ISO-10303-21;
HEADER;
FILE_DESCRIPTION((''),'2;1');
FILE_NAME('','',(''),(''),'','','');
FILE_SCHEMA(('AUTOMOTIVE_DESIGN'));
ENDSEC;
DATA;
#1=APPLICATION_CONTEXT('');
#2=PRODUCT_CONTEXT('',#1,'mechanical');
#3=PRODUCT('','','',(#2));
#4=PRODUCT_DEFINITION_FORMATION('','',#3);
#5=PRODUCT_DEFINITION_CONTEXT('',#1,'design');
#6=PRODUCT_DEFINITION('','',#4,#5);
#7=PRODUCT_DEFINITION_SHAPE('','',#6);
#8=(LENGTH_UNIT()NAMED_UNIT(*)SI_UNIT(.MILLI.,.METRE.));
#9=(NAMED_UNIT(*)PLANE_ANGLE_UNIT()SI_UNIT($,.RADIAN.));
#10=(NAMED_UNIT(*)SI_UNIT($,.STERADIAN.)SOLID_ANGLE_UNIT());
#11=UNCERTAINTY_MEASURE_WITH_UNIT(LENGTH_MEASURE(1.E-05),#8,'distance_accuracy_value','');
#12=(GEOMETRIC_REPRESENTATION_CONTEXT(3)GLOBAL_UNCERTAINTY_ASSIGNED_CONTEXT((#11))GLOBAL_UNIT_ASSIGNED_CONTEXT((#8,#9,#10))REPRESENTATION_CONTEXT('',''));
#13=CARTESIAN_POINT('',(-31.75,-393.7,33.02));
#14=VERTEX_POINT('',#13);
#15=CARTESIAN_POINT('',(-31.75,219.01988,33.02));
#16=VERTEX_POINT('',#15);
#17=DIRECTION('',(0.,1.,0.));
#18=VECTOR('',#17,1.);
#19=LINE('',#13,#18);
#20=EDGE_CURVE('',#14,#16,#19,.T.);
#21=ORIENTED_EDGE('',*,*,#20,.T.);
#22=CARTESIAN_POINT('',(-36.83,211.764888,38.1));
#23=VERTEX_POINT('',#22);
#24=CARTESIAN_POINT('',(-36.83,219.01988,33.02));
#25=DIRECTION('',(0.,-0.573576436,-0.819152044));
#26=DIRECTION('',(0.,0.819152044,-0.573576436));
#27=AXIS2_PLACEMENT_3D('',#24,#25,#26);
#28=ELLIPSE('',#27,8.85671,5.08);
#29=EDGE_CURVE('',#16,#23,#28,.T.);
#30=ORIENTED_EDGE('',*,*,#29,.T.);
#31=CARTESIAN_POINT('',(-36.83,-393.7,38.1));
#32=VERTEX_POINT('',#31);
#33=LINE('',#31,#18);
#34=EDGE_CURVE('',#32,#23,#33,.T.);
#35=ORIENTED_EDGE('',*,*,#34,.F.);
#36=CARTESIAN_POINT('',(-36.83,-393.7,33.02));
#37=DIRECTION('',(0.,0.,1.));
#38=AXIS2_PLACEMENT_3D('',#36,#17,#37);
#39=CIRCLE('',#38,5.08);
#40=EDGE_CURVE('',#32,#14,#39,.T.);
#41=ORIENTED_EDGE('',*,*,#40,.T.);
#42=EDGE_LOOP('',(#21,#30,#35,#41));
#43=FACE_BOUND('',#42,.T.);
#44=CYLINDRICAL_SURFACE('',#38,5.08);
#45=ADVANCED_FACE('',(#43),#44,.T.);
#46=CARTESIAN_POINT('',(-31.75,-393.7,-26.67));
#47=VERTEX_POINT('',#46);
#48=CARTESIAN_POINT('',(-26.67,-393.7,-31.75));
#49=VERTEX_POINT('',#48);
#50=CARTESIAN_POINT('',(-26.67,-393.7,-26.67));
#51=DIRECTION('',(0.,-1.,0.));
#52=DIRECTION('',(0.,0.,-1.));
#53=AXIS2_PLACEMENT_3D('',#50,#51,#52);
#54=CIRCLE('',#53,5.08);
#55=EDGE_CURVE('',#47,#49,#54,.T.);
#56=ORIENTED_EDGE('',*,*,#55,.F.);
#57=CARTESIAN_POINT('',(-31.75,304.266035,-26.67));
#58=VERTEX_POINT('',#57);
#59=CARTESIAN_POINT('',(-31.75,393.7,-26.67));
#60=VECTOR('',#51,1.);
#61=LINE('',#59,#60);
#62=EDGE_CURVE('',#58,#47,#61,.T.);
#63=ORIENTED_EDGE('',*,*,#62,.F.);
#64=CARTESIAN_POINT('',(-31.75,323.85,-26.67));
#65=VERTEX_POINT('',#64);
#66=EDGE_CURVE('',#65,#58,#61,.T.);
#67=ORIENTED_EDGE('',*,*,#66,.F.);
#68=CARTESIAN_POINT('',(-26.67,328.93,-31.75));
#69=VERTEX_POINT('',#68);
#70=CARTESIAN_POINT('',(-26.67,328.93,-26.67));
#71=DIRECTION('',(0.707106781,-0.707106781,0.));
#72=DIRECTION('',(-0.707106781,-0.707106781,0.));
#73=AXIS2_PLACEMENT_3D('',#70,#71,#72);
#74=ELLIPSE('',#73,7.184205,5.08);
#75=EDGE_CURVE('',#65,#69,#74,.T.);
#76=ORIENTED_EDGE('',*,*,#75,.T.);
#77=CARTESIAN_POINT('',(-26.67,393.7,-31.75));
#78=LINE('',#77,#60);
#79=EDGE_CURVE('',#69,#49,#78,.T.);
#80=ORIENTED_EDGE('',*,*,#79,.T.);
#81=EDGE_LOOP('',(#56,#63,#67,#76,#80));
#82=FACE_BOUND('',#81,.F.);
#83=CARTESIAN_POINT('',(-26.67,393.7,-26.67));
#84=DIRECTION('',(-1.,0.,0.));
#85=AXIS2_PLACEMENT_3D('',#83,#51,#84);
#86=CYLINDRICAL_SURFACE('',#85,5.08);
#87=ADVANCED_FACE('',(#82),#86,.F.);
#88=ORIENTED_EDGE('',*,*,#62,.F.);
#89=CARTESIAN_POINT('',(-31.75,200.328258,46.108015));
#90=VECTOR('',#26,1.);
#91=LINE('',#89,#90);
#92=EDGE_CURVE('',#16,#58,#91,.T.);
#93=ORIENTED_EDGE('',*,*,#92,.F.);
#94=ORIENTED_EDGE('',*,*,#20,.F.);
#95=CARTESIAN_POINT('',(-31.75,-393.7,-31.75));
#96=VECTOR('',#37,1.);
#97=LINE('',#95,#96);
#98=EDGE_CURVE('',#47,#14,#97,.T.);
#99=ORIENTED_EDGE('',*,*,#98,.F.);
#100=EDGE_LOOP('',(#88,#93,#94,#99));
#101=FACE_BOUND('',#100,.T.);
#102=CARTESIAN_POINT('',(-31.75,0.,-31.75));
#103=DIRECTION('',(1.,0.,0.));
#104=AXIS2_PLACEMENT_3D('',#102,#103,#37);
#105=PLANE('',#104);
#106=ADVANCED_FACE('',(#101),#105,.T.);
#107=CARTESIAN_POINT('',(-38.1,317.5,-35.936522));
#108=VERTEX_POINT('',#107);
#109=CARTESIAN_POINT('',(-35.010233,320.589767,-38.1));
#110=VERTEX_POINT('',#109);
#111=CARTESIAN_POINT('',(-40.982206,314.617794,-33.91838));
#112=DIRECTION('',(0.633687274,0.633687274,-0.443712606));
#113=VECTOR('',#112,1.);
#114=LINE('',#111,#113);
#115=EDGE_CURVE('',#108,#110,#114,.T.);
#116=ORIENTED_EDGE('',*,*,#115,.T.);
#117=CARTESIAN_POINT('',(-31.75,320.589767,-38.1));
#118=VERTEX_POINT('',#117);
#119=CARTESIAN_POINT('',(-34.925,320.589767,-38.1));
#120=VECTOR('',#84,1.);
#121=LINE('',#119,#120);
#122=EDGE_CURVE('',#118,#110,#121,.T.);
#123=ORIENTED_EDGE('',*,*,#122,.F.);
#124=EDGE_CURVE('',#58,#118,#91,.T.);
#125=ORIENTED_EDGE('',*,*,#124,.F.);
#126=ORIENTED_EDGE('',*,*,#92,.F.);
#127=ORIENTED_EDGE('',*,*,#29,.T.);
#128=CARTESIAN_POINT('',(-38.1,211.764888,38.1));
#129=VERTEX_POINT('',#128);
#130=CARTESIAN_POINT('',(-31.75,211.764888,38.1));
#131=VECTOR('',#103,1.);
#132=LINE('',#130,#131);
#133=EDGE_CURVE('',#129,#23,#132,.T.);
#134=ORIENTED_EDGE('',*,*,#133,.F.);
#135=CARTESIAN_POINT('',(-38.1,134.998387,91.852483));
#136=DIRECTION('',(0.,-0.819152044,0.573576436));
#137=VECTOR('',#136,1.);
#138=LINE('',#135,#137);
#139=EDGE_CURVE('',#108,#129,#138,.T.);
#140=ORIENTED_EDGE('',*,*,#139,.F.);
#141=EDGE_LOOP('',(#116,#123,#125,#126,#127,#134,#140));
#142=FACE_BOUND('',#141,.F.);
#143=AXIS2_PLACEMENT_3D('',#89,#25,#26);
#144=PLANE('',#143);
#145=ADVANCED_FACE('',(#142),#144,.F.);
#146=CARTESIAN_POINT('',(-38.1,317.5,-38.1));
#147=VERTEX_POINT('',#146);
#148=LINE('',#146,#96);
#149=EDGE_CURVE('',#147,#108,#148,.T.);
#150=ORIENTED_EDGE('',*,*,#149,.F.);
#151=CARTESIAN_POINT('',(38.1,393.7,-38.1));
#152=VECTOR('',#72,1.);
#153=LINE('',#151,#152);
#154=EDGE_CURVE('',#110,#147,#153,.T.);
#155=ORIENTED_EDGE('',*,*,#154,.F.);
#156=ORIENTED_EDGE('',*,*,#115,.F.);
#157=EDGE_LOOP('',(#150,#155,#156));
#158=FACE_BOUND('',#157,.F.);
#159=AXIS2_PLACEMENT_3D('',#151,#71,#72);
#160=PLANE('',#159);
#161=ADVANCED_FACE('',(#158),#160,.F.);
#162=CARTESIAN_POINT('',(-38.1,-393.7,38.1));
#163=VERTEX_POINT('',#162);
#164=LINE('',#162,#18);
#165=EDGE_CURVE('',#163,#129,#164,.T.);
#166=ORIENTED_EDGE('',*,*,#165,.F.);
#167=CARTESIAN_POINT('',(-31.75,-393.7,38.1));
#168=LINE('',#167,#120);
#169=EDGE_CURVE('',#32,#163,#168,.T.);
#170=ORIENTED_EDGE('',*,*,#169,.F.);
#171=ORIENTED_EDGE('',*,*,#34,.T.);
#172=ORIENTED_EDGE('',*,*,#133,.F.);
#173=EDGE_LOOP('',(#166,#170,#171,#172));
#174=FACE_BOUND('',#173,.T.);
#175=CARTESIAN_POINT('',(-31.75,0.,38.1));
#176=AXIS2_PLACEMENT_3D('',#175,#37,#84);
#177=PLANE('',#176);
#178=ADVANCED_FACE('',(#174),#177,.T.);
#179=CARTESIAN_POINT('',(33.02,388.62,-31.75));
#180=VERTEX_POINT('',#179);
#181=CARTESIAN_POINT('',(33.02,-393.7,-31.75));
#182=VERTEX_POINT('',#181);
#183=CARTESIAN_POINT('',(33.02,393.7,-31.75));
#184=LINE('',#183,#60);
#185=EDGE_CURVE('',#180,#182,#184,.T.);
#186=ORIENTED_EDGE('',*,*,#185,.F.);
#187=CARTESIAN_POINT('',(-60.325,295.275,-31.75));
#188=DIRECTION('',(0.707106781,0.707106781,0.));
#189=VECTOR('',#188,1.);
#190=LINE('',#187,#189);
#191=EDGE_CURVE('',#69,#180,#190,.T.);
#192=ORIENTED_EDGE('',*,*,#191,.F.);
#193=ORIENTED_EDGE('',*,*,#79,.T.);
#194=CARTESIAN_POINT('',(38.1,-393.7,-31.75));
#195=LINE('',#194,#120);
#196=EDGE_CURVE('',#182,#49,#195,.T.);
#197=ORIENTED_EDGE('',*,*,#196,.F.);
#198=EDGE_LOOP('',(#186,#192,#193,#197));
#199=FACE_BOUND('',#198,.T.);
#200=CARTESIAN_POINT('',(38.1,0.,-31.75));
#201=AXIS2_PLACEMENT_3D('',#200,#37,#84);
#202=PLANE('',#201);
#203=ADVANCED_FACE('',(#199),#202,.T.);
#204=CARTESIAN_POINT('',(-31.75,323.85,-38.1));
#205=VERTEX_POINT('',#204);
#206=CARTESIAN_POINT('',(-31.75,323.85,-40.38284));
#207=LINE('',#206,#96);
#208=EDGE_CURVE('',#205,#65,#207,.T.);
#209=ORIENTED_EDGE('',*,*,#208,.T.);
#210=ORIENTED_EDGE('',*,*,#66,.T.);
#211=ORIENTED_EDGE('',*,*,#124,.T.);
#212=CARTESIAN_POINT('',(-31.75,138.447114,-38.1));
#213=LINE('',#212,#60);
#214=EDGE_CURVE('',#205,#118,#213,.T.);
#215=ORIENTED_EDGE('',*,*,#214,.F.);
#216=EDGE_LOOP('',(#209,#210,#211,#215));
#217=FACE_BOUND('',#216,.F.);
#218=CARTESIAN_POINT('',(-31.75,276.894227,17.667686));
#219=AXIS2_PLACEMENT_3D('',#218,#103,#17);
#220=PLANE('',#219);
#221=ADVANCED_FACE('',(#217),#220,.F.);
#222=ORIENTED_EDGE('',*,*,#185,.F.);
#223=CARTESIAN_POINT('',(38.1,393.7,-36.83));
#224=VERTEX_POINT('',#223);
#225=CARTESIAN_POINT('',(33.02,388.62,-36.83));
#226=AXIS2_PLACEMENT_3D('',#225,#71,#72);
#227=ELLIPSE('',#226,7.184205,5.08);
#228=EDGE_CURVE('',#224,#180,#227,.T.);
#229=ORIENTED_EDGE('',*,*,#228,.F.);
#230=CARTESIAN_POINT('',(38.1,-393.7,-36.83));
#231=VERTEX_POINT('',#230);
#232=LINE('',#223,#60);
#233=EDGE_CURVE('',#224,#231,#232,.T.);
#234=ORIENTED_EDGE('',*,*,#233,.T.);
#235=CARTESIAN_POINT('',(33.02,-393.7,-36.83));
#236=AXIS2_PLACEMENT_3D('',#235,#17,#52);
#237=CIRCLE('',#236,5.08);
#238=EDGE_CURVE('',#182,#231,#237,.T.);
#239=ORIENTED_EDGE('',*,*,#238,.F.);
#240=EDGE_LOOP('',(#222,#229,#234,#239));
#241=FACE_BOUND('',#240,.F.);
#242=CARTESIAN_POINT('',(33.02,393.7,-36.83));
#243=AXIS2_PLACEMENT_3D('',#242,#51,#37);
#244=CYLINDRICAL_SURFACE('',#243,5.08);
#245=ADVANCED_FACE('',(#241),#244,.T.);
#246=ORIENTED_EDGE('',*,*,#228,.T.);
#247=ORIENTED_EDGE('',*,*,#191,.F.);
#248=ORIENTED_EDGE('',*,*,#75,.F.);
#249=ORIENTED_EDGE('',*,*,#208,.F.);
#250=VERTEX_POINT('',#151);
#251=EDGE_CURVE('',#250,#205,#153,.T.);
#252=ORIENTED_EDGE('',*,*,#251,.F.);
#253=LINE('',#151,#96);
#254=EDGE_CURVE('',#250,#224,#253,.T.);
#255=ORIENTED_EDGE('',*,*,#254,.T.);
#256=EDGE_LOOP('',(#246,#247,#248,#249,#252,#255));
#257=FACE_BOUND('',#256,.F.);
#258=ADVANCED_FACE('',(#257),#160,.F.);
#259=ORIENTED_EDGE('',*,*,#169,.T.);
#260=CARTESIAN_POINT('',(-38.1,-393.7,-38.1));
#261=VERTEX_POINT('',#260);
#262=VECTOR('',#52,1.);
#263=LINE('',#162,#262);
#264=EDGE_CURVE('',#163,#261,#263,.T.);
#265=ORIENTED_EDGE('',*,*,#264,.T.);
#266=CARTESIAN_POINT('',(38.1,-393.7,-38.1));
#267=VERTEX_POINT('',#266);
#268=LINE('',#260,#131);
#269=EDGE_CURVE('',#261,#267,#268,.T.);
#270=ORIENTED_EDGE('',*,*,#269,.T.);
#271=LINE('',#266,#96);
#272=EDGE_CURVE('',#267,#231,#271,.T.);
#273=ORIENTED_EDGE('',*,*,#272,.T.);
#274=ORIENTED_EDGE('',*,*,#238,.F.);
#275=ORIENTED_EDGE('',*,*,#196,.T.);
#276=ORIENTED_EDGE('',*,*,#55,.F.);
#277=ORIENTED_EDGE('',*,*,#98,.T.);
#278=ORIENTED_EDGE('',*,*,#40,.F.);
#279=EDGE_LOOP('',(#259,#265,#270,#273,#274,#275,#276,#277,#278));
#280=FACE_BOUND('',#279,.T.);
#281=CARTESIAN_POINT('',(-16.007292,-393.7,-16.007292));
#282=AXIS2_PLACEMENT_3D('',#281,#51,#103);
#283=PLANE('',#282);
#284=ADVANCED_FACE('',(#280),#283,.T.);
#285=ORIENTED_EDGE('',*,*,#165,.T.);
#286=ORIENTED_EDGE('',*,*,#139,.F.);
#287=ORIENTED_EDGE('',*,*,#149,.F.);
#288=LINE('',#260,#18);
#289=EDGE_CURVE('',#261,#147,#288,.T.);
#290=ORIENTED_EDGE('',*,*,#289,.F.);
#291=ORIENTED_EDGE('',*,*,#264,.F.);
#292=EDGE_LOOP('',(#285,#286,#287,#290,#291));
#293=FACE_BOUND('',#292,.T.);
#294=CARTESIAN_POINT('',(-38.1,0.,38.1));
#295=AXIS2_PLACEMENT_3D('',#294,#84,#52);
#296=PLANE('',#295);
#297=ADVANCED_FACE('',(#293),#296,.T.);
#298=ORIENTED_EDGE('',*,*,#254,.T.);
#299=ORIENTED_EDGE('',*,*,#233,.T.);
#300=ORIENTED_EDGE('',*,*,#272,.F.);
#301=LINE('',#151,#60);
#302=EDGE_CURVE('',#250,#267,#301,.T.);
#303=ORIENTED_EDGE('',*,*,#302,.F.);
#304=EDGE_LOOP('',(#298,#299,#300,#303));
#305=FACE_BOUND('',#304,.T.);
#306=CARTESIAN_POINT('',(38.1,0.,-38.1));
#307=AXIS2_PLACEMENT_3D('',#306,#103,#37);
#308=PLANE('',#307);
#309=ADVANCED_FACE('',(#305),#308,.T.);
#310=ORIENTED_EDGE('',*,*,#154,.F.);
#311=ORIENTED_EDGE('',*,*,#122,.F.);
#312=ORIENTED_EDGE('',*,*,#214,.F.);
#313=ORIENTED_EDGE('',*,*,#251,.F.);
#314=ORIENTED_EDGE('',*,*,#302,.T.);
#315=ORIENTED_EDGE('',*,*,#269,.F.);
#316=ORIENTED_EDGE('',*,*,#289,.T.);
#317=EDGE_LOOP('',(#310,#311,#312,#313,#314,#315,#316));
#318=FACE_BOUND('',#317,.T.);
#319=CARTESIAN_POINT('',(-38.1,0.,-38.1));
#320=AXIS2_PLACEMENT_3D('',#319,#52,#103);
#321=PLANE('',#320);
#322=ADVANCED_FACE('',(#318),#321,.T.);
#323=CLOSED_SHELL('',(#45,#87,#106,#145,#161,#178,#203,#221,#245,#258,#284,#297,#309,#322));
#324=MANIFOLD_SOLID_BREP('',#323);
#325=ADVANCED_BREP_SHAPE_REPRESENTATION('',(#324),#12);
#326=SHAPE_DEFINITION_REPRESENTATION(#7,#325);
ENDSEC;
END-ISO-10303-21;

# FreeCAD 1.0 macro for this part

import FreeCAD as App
import Part
import Sketcher

V = App.Vector
Q = App.Units.Quantity


def edges_at(feature, points):
    """Names of the edges that pass closest to the given points."""
    edges = feature.Shape.Edges
    near = lambda p: min(range(len(edges)), key=lambda i: edges[i].distToShape(Part.Vertex(*p))[0])
    return sorted({f"Edge{near(p) + 1}" for p in points})


def add_polygon(sketch, points):
    """Adds a closed chain of lines whose ends are joined by coincident constraints."""
    first, n = sketch.GeometryCount, len(points)
    for a, b in zip(points, points[1:] + points[:1]):
        sketch.addGeometry(Part.LineSegment(App.Vector(*a, 0), App.Vector(*b, 0)), False)
    for i in range(n):
        sketch.addConstraint(Sketcher.Constraint("Coincident", first + i, 2, first + (i + 1) % n, 1))

doc = App.newDocument("Part")
body = doc.addObject("PartDesign::Body", "Body")

# Sketch on XZ plane
sketch1 = body.newObject("Sketcher::SketchObject", "Sketch")
sketch1.AttachmentSupport = (doc.getObject("XZ_Plane"), [""])
sketch1.MapMode = "FlatFace"
add_polygon(sketch1, [(-38, -38), (38, -38), (38, -32), (-32, -32), (-32, 38), (-38, 38)])  # lines 0-5
sketch1.addConstraint(Sketcher.Constraint("Horizontal", 0))
sketch1.addConstraint(Sketcher.Constraint("Vertical", 1))
sketch1.addConstraint(Sketcher.Constraint("Horizontal", 2))
sketch1.addConstraint(Sketcher.Constraint("Vertical", 3))
sketch1.addConstraint(Sketcher.Constraint("Horizontal", 4))
sketch1.addConstraint(Sketcher.Constraint("Vertical", 5))
sketch1.addConstraint(Sketcher.Constraint("Symmetric", 0, 2, 4, 2, -1, 1))
sketch1.addConstraint(Sketcher.Constraint("Equal", 4, 1))
sketch1.addConstraint(Sketcher.Constraint("Equal", 2, 3))
sketch1.addConstraint(Sketcher.Constraint("DistanceX", 0, 1, 0, 2, Q("3 in")))
sketch1.addConstraint(Sketcher.Constraint("DistanceX", 2, 2, 2, 1, Q("2.75 in")))
pad1 = body.newObject("PartDesign::Pad", "Pad")
pad1.Profile = sketch1
pad1.Length = Q("31 in")
pad1.Midplane = True
doc.recompute()

fillet = body.newObject("PartDesign::Fillet", "Fillet")
fillet.Base = (pad1, edges_at(pad1, [(-31.75, 0, 38.1), (-31.75, 0, -31.75), (38.1, 0, -31.75)]))
fillet.Radius = Q("0.2 in")

# Sketch on XY plane
sketch2 = body.newObject("Sketcher::SketchObject", "Sketch001")
sketch2.AttachmentSupport = (doc.getObject("XY_Plane"), [""])
sketch2.MapMode = "FlatFace"
sketch2.AttachmentOffset = App.Placement(V(0, 0, -1.5 * 25.4), App.Rotation())
add_polygon(sketch2, [(-38, 394), (38, 394), (-38, 318)])  # lines 0-2
sketch2.addConstraint(Sketcher.Constraint("Horizontal", 0))
sketch2.addConstraint(Sketcher.Constraint("Vertical", 2))
sketch2.addConstraint(Sketcher.Constraint("Equal", 0, 2))
sketch2.addConstraint(Sketcher.Constraint("DistanceX", 0, 1, 0, 2, Q("3 in")))
sketch2.addConstraint(Sketcher.Constraint("DistanceX", -1, 1, 0, 2, Q("1.5 in")))
sketch2.addConstraint(Sketcher.Constraint("DistanceY", -1, 1, 0, 2, Q("15.5 in")))
pocket1 = body.newObject("PartDesign::Pocket", "Pocket")
pocket1.Profile = sketch2
pocket1.Length = Q("3 in")
pocket1.Reversed = True

# Sketch on YZ plane
sketch3 = body.newObject("Sketcher::SketchObject", "Sketch002")
sketch3.AttachmentSupport = (doc.getObject("YZ_Plane"), [""])
sketch3.MapMode = "FlatFace"
sketch3.AttachmentOffset = App.Placement(V(0, 0, -1.25 * 25.4), App.Rotation())
add_polygon(sketch3, [(200, 46), (324, -40), (324, 46)])  # lines 0-2
sketch3.addConstraint(Sketcher.Constraint("Vertical", 1))
sketch3.addConstraint(Sketcher.Constraint("Horizontal", 2))
sketch3.addConstraint(Sketcher.Constraint("Angle", 0, Q("-35 deg")))
sketch3.addConstraint(Sketcher.Constraint("DistanceX", -1, 1, 0, 2, Q("12.75 in")))
sketch3.addConstraint(Sketcher.Constraint("DistanceX", 2, 2, 2, 1, 123.521742))
sketch3.addConstraint(Sketcher.Constraint("DistanceY", 0, 2, -1, 1, 40.38284))
pocket2 = body.newObject("PartDesign::Pocket", "Pocket001")
pocket2.Profile = sketch3
pocket2.Length = Q("1 in")

doc.recompute()
